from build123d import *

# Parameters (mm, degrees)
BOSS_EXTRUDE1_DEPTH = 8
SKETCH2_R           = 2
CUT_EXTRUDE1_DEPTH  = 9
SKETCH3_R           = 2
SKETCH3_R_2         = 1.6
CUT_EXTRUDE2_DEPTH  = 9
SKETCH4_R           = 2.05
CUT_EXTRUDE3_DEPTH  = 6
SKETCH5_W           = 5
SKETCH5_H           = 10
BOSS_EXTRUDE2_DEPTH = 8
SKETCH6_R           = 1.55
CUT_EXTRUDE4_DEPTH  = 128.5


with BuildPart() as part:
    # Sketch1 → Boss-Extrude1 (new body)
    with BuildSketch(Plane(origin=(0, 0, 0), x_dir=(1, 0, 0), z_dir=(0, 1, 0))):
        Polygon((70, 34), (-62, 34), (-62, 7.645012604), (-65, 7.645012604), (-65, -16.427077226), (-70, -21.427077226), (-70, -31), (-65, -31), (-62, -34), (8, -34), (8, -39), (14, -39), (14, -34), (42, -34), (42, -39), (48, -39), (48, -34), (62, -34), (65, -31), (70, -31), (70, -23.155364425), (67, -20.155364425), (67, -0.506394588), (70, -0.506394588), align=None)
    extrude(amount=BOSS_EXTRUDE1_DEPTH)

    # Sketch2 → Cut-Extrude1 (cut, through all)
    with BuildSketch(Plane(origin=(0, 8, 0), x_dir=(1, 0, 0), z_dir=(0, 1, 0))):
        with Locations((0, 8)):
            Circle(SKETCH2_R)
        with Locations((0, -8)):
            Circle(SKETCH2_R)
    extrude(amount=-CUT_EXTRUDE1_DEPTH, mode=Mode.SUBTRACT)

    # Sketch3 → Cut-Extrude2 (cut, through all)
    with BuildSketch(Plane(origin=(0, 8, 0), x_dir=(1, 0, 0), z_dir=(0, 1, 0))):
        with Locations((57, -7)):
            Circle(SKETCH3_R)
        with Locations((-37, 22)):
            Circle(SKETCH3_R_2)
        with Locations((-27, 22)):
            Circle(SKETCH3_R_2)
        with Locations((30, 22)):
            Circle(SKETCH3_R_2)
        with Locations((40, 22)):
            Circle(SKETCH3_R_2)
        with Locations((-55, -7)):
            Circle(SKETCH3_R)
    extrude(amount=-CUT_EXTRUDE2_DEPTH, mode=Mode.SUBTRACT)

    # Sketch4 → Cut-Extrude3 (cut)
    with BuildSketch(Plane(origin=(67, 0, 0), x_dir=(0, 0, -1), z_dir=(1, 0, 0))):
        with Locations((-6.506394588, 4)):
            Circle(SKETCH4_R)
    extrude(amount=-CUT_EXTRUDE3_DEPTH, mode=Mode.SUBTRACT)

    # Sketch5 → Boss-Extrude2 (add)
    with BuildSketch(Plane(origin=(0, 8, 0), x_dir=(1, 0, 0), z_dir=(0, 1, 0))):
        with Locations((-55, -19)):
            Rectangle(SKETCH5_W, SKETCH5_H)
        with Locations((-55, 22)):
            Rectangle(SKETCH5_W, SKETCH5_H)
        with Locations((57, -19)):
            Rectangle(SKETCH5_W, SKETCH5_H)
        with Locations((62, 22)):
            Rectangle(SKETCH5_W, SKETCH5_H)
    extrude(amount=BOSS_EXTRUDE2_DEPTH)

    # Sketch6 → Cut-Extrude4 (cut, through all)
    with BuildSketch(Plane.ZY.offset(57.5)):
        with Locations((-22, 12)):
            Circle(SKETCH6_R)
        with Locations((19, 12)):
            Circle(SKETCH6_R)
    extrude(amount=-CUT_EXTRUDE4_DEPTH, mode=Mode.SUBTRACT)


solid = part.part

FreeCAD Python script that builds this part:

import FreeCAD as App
import Part
import Sketcher

V = App.Vector

doc = App.newDocument("Part")
body = doc.addObject("PartDesign::Body", "Body")

# Sketch on XZ plane
sketch1 = doc.addObject("Sketcher::SketchObject", "Sketch")
body.addObject(sketch1)
sketch1.AttachmentSupport = (doc.XZ_Plane, [""])
sketch1.MapMode = "FlatFace"
sketch1.addGeometry([
    Part.LineSegment(V(70, -34, 0), V(-62, -34, 0)),  # 0
    Part.LineSegment(V(-62, -34, 0), V(-62, -7.6, 0)),  # 1
    Part.LineSegment(V(-62, -7.6, 0), V(-65, -7.6, 0)),  # 2
    Part.LineSegment(V(-65, -7.6, 0), V(-65, 16.4, 0)),  # 3
    Part.LineSegment(V(-65, 16.4, 0), V(-70, 21.4, 0)),  # 4
    Part.LineSegment(V(-70, 21.4, 0), V(-70, 31, 0)),  # 5
    Part.LineSegment(V(-70, 31, 0), V(-65, 31, 0)),  # 6
    Part.LineSegment(V(-65, 31, 0), V(-62, 34, 0)),  # 7
    Part.LineSegment(V(-62, 34, 0), V(8, 34, 0)),  # 8
    Part.LineSegment(V(8, 34, 0), V(8, 39, 0)),  # 9
    Part.LineSegment(V(8, 39, 0), V(14, 39, 0)),  # 10
    Part.LineSegment(V(14, 39, 0), V(14, 34, 0)),  # 11
    Part.LineSegment(V(14, 34, 0), V(42, 34, 0)),  # 12
    Part.LineSegment(V(42, 34, 0), V(42, 39, 0)),  # 13
    Part.LineSegment(V(42, 39, 0), V(48, 39, 0)),  # 14
    Part.LineSegment(V(48, 39, 0), V(48, 34, 0)),  # 15
    Part.LineSegment(V(48, 34, 0), V(62, 34, 0)),  # 16
    Part.LineSegment(V(62, 34, 0), V(65, 31, 0)),  # 17
    Part.LineSegment(V(65, 31, 0), V(70, 31, 0)),  # 18
    Part.LineSegment(V(70, 31, 0), V(70, 23.2, 0)),  # 19
    Part.LineSegment(V(70, 23.2, 0), V(67, 20.2, 0)),  # 20
    Part.LineSegment(V(67, 20.2, 0), V(67, 0.5, 0)),  # 21
    Part.LineSegment(V(67, 0.5, 0), V(70, 0.5, 0)),  # 22
    Part.LineSegment(V(70, 0.5, 0), V(70, -34, 0)),  # 23
], False)
sketch1.addConstraint([
    Sketcher.Constraint("Coincident", 0, 2, 1, 1),
    Sketcher.Constraint("Coincident", 1, 2, 2, 1),
    Sketcher.Constraint("Coincident", 2, 2, 3, 1),
    Sketcher.Constraint("Coincident", 3, 2, 4, 1),
    Sketcher.Constraint("Coincident", 4, 2, 5, 1),
    Sketcher.Constraint("Coincident", 5, 2, 6, 1),
    Sketcher.Constraint("Coincident", 6, 2, 7, 1),
    Sketcher.Constraint("Coincident", 7, 2, 8, 1),
    Sketcher.Constraint("Coincident", 8, 2, 9, 1),
    Sketcher.Constraint("Coincident", 9, 2, 10, 1),
    Sketcher.Constraint("Coincident", 10, 2, 11, 1),
    Sketcher.Constraint("Coincident", 11, 2, 12, 1),
    Sketcher.Constraint("Coincident", 12, 2, 13, 1),
    Sketcher.Constraint("Coincident", 13, 2, 14, 1),
    Sketcher.Constraint("Coincident", 14, 2, 15, 1),
    Sketcher.Constraint("Coincident", 15, 2, 16, 1),
    Sketcher.Constraint("Coincident", 16, 2, 17, 1),
    Sketcher.Constraint("Coincident", 17, 2, 18, 1),
    Sketcher.Constraint("Coincident", 18, 2, 19, 1),
    Sketcher.Constraint("Coincident", 19, 2, 20, 1),
    Sketcher.Constraint("Coincident", 20, 2, 21, 1),
    Sketcher.Constraint("Coincident", 21, 2, 22, 1),
    Sketcher.Constraint("Coincident", 22, 2, 23, 1),
    Sketcher.Constraint("Coincident", 23, 2, 0, 1),
    Sketcher.Constraint("Horizontal", 0),
    Sketcher.Constraint("Vertical", 1),
    Sketcher.Constraint("Horizontal", 2),
    Sketcher.Constraint("Vertical", 3),
    Sketcher.Constraint("Vertical", 5),
    Sketcher.Constraint("Horizontal", 6),
    Sketcher.Constraint("Horizontal", 8),
    Sketcher.Constraint("Vertical", 9),
    Sketcher.Constraint("Horizontal", 10),
    Sketcher.Constraint("Vertical", 11),
    Sketcher.Constraint("Horizontal", 12),
    Sketcher.Constraint("Vertical", 13),
    Sketcher.Constraint("Horizontal", 14),
    Sketcher.Constraint("Vertical", 15),
    Sketcher.Constraint("Horizontal", 16),
    Sketcher.Constraint("Horizontal", 18),
    Sketcher.Constraint("Vertical", 19),
    Sketcher.Constraint("Vertical", 21),
    Sketcher.Constraint("Horizontal", 22),
    Sketcher.Constraint("Vertical", 23),
    Sketcher.Constraint("Symmetric", 0, 2, 16, 2, -1, 1),
    Sketcher.Constraint("Symmetric", 7, 2, 16, 2, -2),
    Sketcher.Constraint("Symmetric", 6, 2, 17, 2, -2),
    Sketcher.Constraint("Perpendicular", 4, 7),
    Sketcher.Constraint("Perpendicular", 7, 17),
    Sketcher.Constraint("Perpendicular", 17, 20),
    Sketcher.Constraint("Horizontal", 8, 2, 11, 2),
    Sketcher.Constraint("Horizontal", 10, 2, 13, 2),
    Sketcher.Constraint("Vertical", 3, 2, 6, 2),
    Sketcher.Constraint("Vertical", 19, 2, 22, 2),
    Sketcher.Constraint("Equal", 10, 14),
    Sketcher.Constraint("Equal", 6, 18),
    Sketcher.Constraint("Equal", 2, 22),
    Sketcher.Constraint("Equal", 18, 9),
    Sketcher.Constraint("DistanceX", 0, 2, 0, 1, 132.0),
    Sketcher.Constraint("DistanceX", 2, 2, 2, 1, 3.0),
    Sketcher.Constraint("DistanceX", 6, 1, 6, 2, 5.0),
    Sketcher.Constraint("DistanceX", 8, 1, 8, 2, 70.0),
    Sketcher.Constraint("DistanceX", 10, 1, 10, 2, 6.0),
    Sketcher.Constraint("DistanceX", 12, 1, 12, 2, 28.0),
    Sketcher.Constraint("DistanceY", 0, 2, -1, 1, 34.0),
    Sketcher.Constraint("DistanceY", 3, 1, 3, 2, 24.07209),
    Sketcher.Constraint("DistanceY", 21, 2, 21, 1, 19.64897),
    Sketcher.Constraint("DistanceY", 1, 1, 1, 2, 26.354987),
    Sketcher.Constraint("DistanceY", 19, 2, 19, 1, 7.844636),
])
pad1 = doc.addObject("PartDesign::Pad", "Pad")
body.addObject(pad1)
pad1.Profile = sketch1
pad1.Length = 8
pad1.Reversed = True

# Sketch on XZ plane
sketch2 = doc.addObject("Sketcher::SketchObject", "Sketch001")
body.addObject(sketch2)
sketch2.AttachmentSupport = (doc.XZ_Plane, [""])
sketch2.MapMode = "FlatFace"
sketch2.AttachmentOffset = App.Placement(V(0, 0, -8), App.Rotation())
sketch2.addGeometry([
    Part.Circle(V(0, -8, 0), V(0, 0, 1), 2),
    Part.Circle(V(0, 8, 0), V(0, 0, 1), 2),
], False)
sketch2.addConstraint([
    Sketcher.Constraint("Equal", 0, 1),
    Sketcher.Constraint("Symmetric", 0, 3, 1, 3, -1, 1),
    Sketcher.Constraint("PointOnObject", 0, 3, -2),
    Sketcher.Constraint("Diameter", 0, 4.0),
    Sketcher.Constraint("DistanceY", 0, 3, -1, 1, 8.0),
])
pocket1 = doc.addObject("PartDesign::Pocket", "Pocket")
body.addObject(pocket1)
pocket1.Profile = sketch2
pocket1.Type = "ThroughAll"
pocket1.Reversed = True

# Sketch on XZ plane
sketch3 = doc.addObject("Sketcher::SketchObject", "Sketch002")
body.addObject(sketch3)
sketch3.AttachmentSupport = (doc.XZ_Plane, [""])
sketch3.MapMode = "FlatFace"
sketch3.AttachmentOffset = App.Placement(V(0, 0, -8), App.Rotation())
sketch3.addGeometry([
    Part.Circle(V(57, 7, 0), V(0, 0, 1), 2),  # 0
    Part.Circle(V(-37, -22, 0), V(0, 0, 1), 1.6),  # 1
    Part.Circle(V(-27, -22, 0), V(0, 0, 1), 1.6),  # 2
    Part.Circle(V(30, -22, 0), V(0, 0, 1), 1.6),  # 3
    Part.Circle(V(40, -22, 0), V(0, 0, 1), 1.6),  # 4
    Part.Circle(V(-55, 7, 0), V(0, 0, 1), 2),  # 5
], False)
sketch3.addConstraint([
    Sketcher.Constraint("Equal", 1, 2),
    Sketcher.Constraint("Equal", 2, 3),
    Sketcher.Constraint("Equal", 3, 4),
    Sketcher.Constraint("Equal", 0, 5),
    Sketcher.Constraint("Horizontal", 1, 3, 2, 3),
    Sketcher.Constraint("Horizontal", 2, 3, 3, 3),
    Sketcher.Constraint("Horizontal", 3, 3, 4, 3),
    Sketcher.Constraint("Horizontal", 0, 3, 5, 3),
    Sketcher.Constraint("Diameter", 0, 4.0),
    Sketcher.Constraint("Diameter", 1, 3.2),
    Sketcher.Constraint("DistanceX", -1, 1, 0, 3, 57.0),
    Sketcher.Constraint("DistanceY", -1, 1, 0, 3, 7.0),
    Sketcher.Constraint("DistanceX", 1, 3, -1, 1, 37.0),
    Sketcher.Constraint("DistanceY", 1, 3, -1, 1, 22.0),
    Sketcher.Constraint("DistanceX", 2, 3, -1, 1, 27.0),
    Sketcher.Constraint("DistanceX", -1, 1, 3, 3, 30.0),
    Sketcher.Constraint("DistanceX", -1, 1, 4, 3, 40.0),
    Sketcher.Constraint("DistanceX", 5, 3, -1, 1, 55.0),
])
pocket2 = doc.addObject("PartDesign::Pocket", "Pocket001")
body.addObject(pocket2)
pocket2.Profile = sketch3
pocket2.Type = "ThroughAll"
pocket2.Reversed = True

# Sketch on YZ plane
sketch4 = doc.addObject("Sketcher::SketchObject", "Sketch003")
body.addObject(sketch4)
sketch4.AttachmentSupport = (doc.YZ_Plane, [""])
sketch4.MapMode = "FlatFace"
sketch4.AttachmentOffset = App.Placement(V(0, 0, 67), App.Rotation())
sketch4.addGeometry(Part.Circle(V(4, 6.5, 0), V(0, 0, 1), 2), False)
sketch4.addConstraint([
    Sketcher.Constraint("Diameter", 0, 4.1),
    Sketcher.Constraint("DistanceX", -1, 1, 0, 3, 4.0),
    Sketcher.Constraint("DistanceY", -1, 1, 0, 3, 6.506395),
])
pocket3 = doc.addObject("PartDesign::Pocket", "Pocket002")
body.addObject(pocket3)
pocket3.Profile = sketch4
pocket3.Length = 6

# Sketch on XZ plane
sketch5 = doc.addObject("Sketcher::SketchObject", "Sketch004")
body.addObject(sketch5)
sketch5.AttachmentSupport = (doc.XZ_Plane, [""])
sketch5.MapMode = "FlatFace"
sketch5.AttachmentOffset = App.Placement(V(0, 0, -8), App.Rotation())
sketch5.addGeometry([
    Part.LineSegment(V(-58, 14, 0), V(-58, 24, 0)),  # 0
    Part.LineSegment(V(-58, 24, 0), V(-52, 24, 0)),  # 1
    Part.LineSegment(V(-52, 24, 0), V(-52, 14, 0)),  # 2
    Part.LineSegment(V(-52, 14, 0), V(-58, 14, 0)),  # 3
    Part.LineSegment(V(-58, -27, 0), V(-58, -17, 0)),  # 4
    Part.LineSegment(V(-58, -17, 0), V(-52, -17, 0)),  # 5
    Part.LineSegment(V(-52, -17, 0), V(-52, -27, 0)),  # 6
    Part.LineSegment(V(-52, -27, 0), V(-58, -27, 0)),  # 7
    Part.LineSegment(V(54, 14, 0), V(54, 24, 0)),  # 8
    Part.LineSegment(V(54, 24, 0), V(60, 24, 0)),  # 9
    Part.LineSegment(V(60, 24, 0), V(60, 14, 0)),  # 10
    Part.LineSegment(V(60, 14, 0), V(54, 14, 0)),  # 11
    Part.LineSegment(V(60, -27, 0), V(60, -17, 0)),  # 12
    Part.LineSegment(V(60, -17, 0), V(64, -17, 0)),  # 13
    Part.LineSegment(V(64, -17, 0), V(64, -27, 0)),  # 14
    Part.LineSegment(V(64, -27, 0), V(60, -27, 0)),  # 15
], False)
sketch5.addConstraint([
    Sketcher.Constraint("Coincident", 0, 2, 1, 1),
    Sketcher.Constraint("Coincident", 1, 2, 2, 1),
    Sketcher.Constraint("Coincident", 2, 2, 3, 1),
    Sketcher.Constraint("Coincident", 3, 2, 0, 1),
    Sketcher.Constraint("Coincident", 4, 2, 5, 1),
    Sketcher.Constraint("Coincident", 5, 2, 6, 1),
    Sketcher.Constraint("Coincident", 6, 2, 7, 1),
    Sketcher.Constraint("Coincident", 7, 2, 4, 1),
    Sketcher.Constraint("Coincident", 8, 2, 9, 1),
    Sketcher.Constraint("Coincident", 9, 2, 10, 1),
    Sketcher.Constraint("Coincident", 10, 2, 11, 1),
    Sketcher.Constraint("Coincident", 11, 2, 8, 1),
    Sketcher.Constraint("Coincident", 12, 2, 13, 1),
    Sketcher.Constraint("Coincident", 13, 2, 14, 1),
    Sketcher.Constraint("Coincident", 14, 2, 15, 1),
    Sketcher.Constraint("Coincident", 15, 2, 12, 1),
    Sketcher.Constraint("Vertical", 0),
    Sketcher.Constraint("Horizontal", 1),
    Sketcher.Constraint("Vertical", 2),
    Sketcher.Constraint("Horizontal", 3),
    Sketcher.Constraint("Vertical", 4),
    Sketcher.Constraint("Horizontal", 5),
    Sketcher.Constraint("Vertical", 6),
    Sketcher.Constraint("Horizontal", 7),
    Sketcher.Constraint("Vertical", 8),
    Sketcher.Constraint("Horizontal", 9),
    Sketcher.Constraint("Vertical", 10),
    Sketcher.Constraint("Horizontal", 11),
    Sketcher.Constraint("Vertical", 12),
    Sketcher.Constraint("Horizontal", 13),
    Sketcher.Constraint("Vertical", 14),
    Sketcher.Constraint("Horizontal", 15),
    Sketcher.Constraint("Horizontal", 1, 2, 8, 2),
    Sketcher.Constraint("Horizontal", 3, 2, 10, 2),
    Sketcher.Constraint("Horizontal", 5, 2, 12, 2),
    Sketcher.Constraint("Horizontal", 7, 2, 14, 2),
    Sketcher.Constraint("Vertical", 3, 2, 4, 2),
    Sketcher.Constraint("Vertical", 2, 2, 5, 2),
    Sketcher.Constraint("Vertical", 10, 2, 12, 2),
    Sketcher.Constraint("Equal", 7, 9),
    Sketcher.Constraint("Equal", 11, 13),
    Sketcher.Constraint("Equal", 2, 4),
    Sketcher.Constraint("DistanceX", 1, 1, 1, 2, 5.0),
    Sketcher.Constraint("DistanceY", 0, 1, 0, 2, 10.0),
    Sketcher.Constraint("DistanceY", -1, 1, 0, 2, 24.0),
    Sketcher.Constraint("DistanceY", 4, 2, -1, 1, 17.0),
    Sketcher.Constraint("DistanceX", 1, 2, 8, 2, 107.0),
    Sketcher.Constraint("DistanceX", 0, 2, -1, 1, 57.5),
])
pad2 = doc.addObject("PartDesign::Pad", "Pad001")
body.addObject(pad2)
pad2.Profile = sketch5
pad2.Length = 8
pad2.Reversed = True

# Sketch on YZ plane
sketch6 = doc.addObject("Sketcher::SketchObject", "Sketch005")
body.addObject(sketch6)
sketch6.AttachmentSupport = (doc.YZ_Plane, [""])
sketch6.MapMode = "FlatFace"
sketch6.AttachmentOffset = App.Placement(V(0, 0, -57.5), App.Rotation())
sketch6.addGeometry([
    Part.Circle(V(12, -22, 0), V(0, 0, 1), 1.6),
    Part.Circle(V(12, 19, 0), V(0, 0, 1), 1.6),
], False)
sketch6.addConstraint([
    Sketcher.Constraint("Equal", 0, 1),
    Sketcher.Constraint("Vertical", 0, 3, 1, 3),
    Sketcher.Constraint("Diameter", 0, 3.1),
    Sketcher.Constraint("DistanceX", -1, 1, 0, 3, 12.0),
    Sketcher.Constraint("DistanceY", 0, 3, -1, 1, 22.0),
    Sketcher.Constraint("DistanceY", -1, 1, 1, 3, 19.0),
])
pocket4 = doc.addObject("PartDesign::Pocket", "Pocket003")
body.addObject(pocket4)
pocket4.Profile = sketch6
pocket4.Type = "ThroughAll"
pocket4.Reversed = True

doc.recompute()
